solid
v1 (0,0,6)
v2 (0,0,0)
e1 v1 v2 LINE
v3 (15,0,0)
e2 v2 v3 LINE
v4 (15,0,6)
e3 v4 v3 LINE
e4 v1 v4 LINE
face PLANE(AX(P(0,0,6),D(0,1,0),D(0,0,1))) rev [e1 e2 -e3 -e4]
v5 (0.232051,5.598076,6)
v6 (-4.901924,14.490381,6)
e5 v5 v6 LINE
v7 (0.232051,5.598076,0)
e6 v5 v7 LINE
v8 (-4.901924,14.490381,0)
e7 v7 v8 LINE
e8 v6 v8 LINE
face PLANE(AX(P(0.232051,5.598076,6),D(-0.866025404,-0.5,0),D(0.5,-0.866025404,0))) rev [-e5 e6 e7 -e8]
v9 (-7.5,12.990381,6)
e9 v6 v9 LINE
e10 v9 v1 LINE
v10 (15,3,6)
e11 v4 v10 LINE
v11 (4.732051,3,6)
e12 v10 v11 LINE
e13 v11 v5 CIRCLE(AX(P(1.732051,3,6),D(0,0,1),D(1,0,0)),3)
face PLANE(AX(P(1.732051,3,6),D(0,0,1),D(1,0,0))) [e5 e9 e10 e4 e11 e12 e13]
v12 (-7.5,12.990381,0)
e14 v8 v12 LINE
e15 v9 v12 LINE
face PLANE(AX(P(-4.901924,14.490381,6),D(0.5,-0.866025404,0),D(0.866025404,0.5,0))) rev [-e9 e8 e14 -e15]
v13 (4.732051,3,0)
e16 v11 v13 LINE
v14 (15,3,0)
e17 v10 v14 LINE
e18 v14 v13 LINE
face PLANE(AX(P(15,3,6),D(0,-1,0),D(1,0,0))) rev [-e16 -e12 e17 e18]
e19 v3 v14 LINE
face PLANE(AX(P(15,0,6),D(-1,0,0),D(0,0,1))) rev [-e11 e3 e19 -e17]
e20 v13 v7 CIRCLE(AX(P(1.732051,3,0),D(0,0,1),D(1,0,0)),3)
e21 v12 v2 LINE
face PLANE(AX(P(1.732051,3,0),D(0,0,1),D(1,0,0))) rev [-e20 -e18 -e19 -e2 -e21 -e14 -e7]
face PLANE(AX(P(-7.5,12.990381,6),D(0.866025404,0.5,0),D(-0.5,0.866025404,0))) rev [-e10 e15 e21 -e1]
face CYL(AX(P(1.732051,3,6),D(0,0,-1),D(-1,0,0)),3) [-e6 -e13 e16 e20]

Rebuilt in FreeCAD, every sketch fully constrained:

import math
import FreeCAD as App
import Part
import Sketcher
from FreeCAD import Vector
Q = App.Units.Quantity

doc = App.newDocument("Part")
params = doc.addObject("Spreadsheet::Sheet", "Params")
for row, (alias, value) in enumerate([
    ("sketch1_radius", "3 mm"),
    ("sketch1_width", "15 mm"),
    ("sketch1_height", "3 mm"),
    ("sketch1_length", "3 mm"),
    ("sketch1_length2", "15 mm"),
    ("pad1_length", "6 mm"),
], start=1):
    params.set(f"A{row}", alias)
    params.set(f"B{row}", "=" + value)
    params.setAlias(f"B{row}", alias)

body = doc.addObject("PartDesign::Body", "Body")

# Sketch on XY plane
sketch1 = body.newObject("Sketcher::SketchObject", "Sketch")
sketch1.AttachmentSupport = (doc.getObject("XY_Plane"), [""])
sketch1.MapMode = "FlatFace"
sketch1.addGeometry([
    Part.LineSegment(Vector(0, 0, 0), Vector(15, 0, 0)),  # 0
    Part.LineSegment(Vector(15, 0, 0), Vector(15, 3, 0)),  # 1
    Part.LineSegment(Vector(15, 3, 0), Vector(4.7, 3, 0)),  # 2
    Part.ArcOfCircle(Part.Circle(Vector(1.7, 3, 0), Vector(0, 0, 1), 3), math.radians(0), math.radians(120)),  # 3
    Part.LineSegment(Vector(0.2, 5.6, 0), Vector(-4.9, 14.5, 0)),  # 4
    Part.LineSegment(Vector(-4.9, 14.5, 0), Vector(-7.5, 13, 0)),  # 5
    Part.LineSegment(Vector(-7.5, 13, 0), Vector(0, 0, 0)),  # 6
], False)
sketch1.addConstraint([
    Sketcher.Constraint("Coincident", 0, 2, 1, 1),
    Sketcher.Constraint("Coincident", 1, 2, 2, 1),
    Sketcher.Constraint("Coincident", 2, 2, 3, 1),
    Sketcher.Constraint("Coincident", 3, 2, 4, 1),
    Sketcher.Constraint("Coincident", 4, 2, 5, 1),
    Sketcher.Constraint("Coincident", 5, 2, 6, 1),
    Sketcher.Constraint("Coincident", 6, 2, 0, 1),
    Sketcher.Constraint("Horizontal", 0),
    Sketcher.Constraint("Vertical", 1),
    Sketcher.Constraint("Horizontal", 2),
    Sketcher.Constraint("Coincident", 6, 2, -1, 1),
    Sketcher.Constraint("Perpendicular", 4, 5),
    Sketcher.Constraint("Perpendicular", 5, 6),
    Sketcher.Constraint("Horizontal", 3, 3, 1, 2),
    Sketcher.Constraint("Radius", 3, Q("3 mm")),
    Sketcher.Constraint("DistanceX", 0, 1, 0, 2, Q("15 mm")),
    Sketcher.Constraint("DistanceY", 1, 1, 1, 2, Q("3 mm")),
    Sketcher.Constraint("Angle", 4, Q("120 deg")),
    Sketcher.Constraint("Distance", 5, Q("3 mm")),
    Sketcher.Constraint("Distance", 6, Q("15 mm")),
    Sketcher.Constraint("DistanceX", 3, 2, 3, 3, Q("1.5 mm")),
])
sketch1.setExpression("Constraints[14]", "Params.sketch1_radius")
sketch1.setExpression("Constraints[15]", "Params.sketch1_width")
sketch1.setExpression("Constraints[16]", "Params.sketch1_height")
sketch1.setExpression("Constraints[18]", "Params.sketch1_length")
sketch1.setExpression("Constraints[19]", "Params.sketch1_length2")
pad1 = body.newObject("PartDesign::Pad", "Pad")
pad1.Profile = sketch1
pad1.setExpression("Length", "Params.pad1_length")

doc.recompute()
